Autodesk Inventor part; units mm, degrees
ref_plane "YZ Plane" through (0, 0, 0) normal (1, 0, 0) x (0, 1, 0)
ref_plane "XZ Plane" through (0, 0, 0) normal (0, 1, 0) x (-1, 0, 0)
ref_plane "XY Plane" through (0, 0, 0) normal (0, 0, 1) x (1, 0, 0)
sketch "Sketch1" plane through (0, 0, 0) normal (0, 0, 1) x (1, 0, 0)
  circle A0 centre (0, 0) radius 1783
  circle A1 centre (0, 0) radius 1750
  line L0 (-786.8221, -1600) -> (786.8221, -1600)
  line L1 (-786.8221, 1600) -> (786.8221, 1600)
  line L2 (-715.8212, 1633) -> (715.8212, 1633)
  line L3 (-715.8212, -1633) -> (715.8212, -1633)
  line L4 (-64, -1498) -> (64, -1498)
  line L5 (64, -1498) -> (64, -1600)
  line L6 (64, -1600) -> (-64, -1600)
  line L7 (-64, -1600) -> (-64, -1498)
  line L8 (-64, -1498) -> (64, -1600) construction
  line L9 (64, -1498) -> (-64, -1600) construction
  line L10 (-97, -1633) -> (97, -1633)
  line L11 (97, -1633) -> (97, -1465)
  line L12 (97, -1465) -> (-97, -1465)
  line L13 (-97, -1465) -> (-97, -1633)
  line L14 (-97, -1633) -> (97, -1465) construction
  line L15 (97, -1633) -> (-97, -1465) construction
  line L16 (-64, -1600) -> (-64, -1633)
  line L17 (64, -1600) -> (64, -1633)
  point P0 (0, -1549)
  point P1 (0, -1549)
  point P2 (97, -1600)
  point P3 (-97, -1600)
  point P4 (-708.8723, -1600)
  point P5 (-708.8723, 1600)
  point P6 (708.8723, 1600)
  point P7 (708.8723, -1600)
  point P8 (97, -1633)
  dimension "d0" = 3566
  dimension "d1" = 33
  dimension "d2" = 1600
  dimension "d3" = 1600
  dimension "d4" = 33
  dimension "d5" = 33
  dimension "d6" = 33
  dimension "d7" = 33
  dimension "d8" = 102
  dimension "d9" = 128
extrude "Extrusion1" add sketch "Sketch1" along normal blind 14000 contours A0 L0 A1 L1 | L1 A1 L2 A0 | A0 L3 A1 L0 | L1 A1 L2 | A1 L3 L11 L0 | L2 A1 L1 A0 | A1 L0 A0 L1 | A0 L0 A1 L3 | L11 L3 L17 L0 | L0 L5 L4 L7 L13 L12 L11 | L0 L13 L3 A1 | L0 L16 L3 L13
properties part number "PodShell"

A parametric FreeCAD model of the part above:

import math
import FreeCAD as App
import Part
import Sketcher

V = App.Vector

doc = App.newDocument("Part")
body = doc.addObject("PartDesign::Body", "Body")

# Sketch on XY plane
sketch1 = body.newObject("Sketcher::SketchObject", "Sketch")
sketch1.AttachmentSupport = (doc.getObject("XY_Plane"), [""])
sketch1.MapMode = "FlatFace"
sketch1.addGeometry(Part.LineSegment(V(716, 1633, 0), V(-716, 1633, 0)), False)
sketch1.addGeometry(Part.ArcOfCircle(Part.Circle(V(0, 0, 0), V(0, 0, 1), 1783), math.radians(114), math.radians(246)), False)
sketch1.addGeometry(Part.LineSegment(V(-716, -1633, 0), V(-64, -1633, 0)), False)
sketch1.addGeometry(Part.LineSegment(V(-64, -1633, 0), V(-64, -1498, 0)), False)
sketch1.addGeometry(Part.LineSegment(V(-64, -1498, 0), V(64, -1498, 0)), False)
sketch1.addGeometry(Part.LineSegment(V(64, -1498, 0), V(64, -1633, 0)), False)
sketch1.addGeometry(Part.LineSegment(V(64, -1633, 0), V(716, -1633, 0)), False)
sketch1.addGeometry(Part.ArcOfCircle(Part.Circle(V(0, 0, 0), V(0, 0, 1), 1783), math.radians(-66), math.radians(66)), False)
sketch1.addGeometry(Part.LineSegment(V(709, -1600, 0), V(97, -1600, 0)), False)
sketch1.addGeometry(Part.LineSegment(V(97, -1600, 0), V(97, -1465, 0)), False)
sketch1.addGeometry(Part.LineSegment(V(97, -1465, 0), V(-97, -1465, 0)), False)
sketch1.addGeometry(Part.LineSegment(V(-97, -1465, 0), V(-97, -1600, 0)), False)
sketch1.addGeometry(Part.LineSegment(V(-97, -1600, 0), V(-709, -1600, 0)), False)
sketch1.addGeometry(Part.ArcOfCircle(Part.Circle(V(0, 0, 0), V(0, 0, 1), 1750), math.radians(114), math.radians(246)), False)
sketch1.addGeometry(Part.LineSegment(V(-709, 1600, 0), V(709, 1600, 0)), False)
sketch1.addGeometry(Part.ArcOfCircle(Part.Circle(V(0, 0, 0), V(0, 0, 1), 1750), math.radians(-66), math.radians(66)), False)
sketch1.addConstraint(Sketcher.Constraint("Coincident", 0, 2, 1, 1))
sketch1.addConstraint(Sketcher.Constraint("Coincident", 1, 2, 2, 1))
sketch1.addConstraint(Sketcher.Constraint("Coincident", 2, 2, 3, 1))
sketch1.addConstraint(Sketcher.Constraint("Coincident", 3, 2, 4, 1))
sketch1.addConstraint(Sketcher.Constraint("Coincident", 4, 2, 5, 1))
sketch1.addConstraint(Sketcher.Constraint("Coincident", 5, 2, 6, 1))
sketch1.addConstraint(Sketcher.Constraint("Coincident", 6, 2, 7, 1))
sketch1.addConstraint(Sketcher.Constraint("Coincident", 7, 2, 0, 1))
sketch1.addConstraint(Sketcher.Constraint("Coincident", 8, 2, 9, 1))
sketch1.addConstraint(Sketcher.Constraint("Coincident", 9, 2, 10, 1))
sketch1.addConstraint(Sketcher.Constraint("Coincident", 10, 2, 11, 1))
sketch1.addConstraint(Sketcher.Constraint("Coincident", 11, 2, 12, 1))
sketch1.addConstraint(Sketcher.Constraint("Coincident", 12, 2, 13, 2))
sketch1.addConstraint(Sketcher.Constraint("Coincident", 13, 1, 14, 1))
sketch1.addConstraint(Sketcher.Constraint("Coincident", 14, 2, 15, 2))
sketch1.addConstraint(Sketcher.Constraint("Coincident", 15, 1, 8, 1))
sketch1.addConstraint(Sketcher.Constraint("Horizontal", 0))
sketch1.addConstraint(Sketcher.Constraint("Horizontal", 2))
sketch1.addConstraint(Sketcher.Constraint("Vertical", 3))
sketch1.addConstraint(Sketcher.Constraint("Horizontal", 4))
sketch1.addConstraint(Sketcher.Constraint("Vertical", 5))
sketch1.addConstraint(Sketcher.Constraint("Horizontal", 6))
sketch1.addConstraint(Sketcher.Constraint("Horizontal", 8))
sketch1.addConstraint(Sketcher.Constraint("Vertical", 9))
sketch1.addConstraint(Sketcher.Constraint("Horizontal", 10))
sketch1.addConstraint(Sketcher.Constraint("Vertical", 11))
sketch1.addConstraint(Sketcher.Constraint("Horizontal", 12))
sketch1.addConstraint(Sketcher.Constraint("Horizontal", 14))
sketch1.addConstraint(Sketcher.Constraint("Coincident", 1, 3, -1, 1))
sketch1.addConstraint(Sketcher.Constraint("Coincident", 7, 3, -1, 1))
sketch1.addConstraint(Sketcher.Constraint("Coincident", 13, 3, -1, 1))
sketch1.addConstraint(Sketcher.Constraint("Coincident", 15, 3, -1, 1))
sketch1.addConstraint(Sketcher.Constraint("Equal", 1, 7))
sketch1.addConstraint(Sketcher.Constraint("Equal", 13, 15))
sketch1.addConstraint(Sketcher.Constraint("Symmetric", 2, 2, 5, 2, -2))
sketch1.addConstraint(Sketcher.Constraint("Symmetric", 8, 2, 11, 2, -2))
sketch1.addConstraint(Sketcher.Constraint("Equal", 5, 9))
sketch1.addConstraint(Sketcher.Constraint("Radius", 1, 1783.0))
sketch1.addConstraint(Sketcher.Constraint("DistanceX", 4, 1, 4, 2, 128.0))
sketch1.addConstraint(Sketcher.Constraint("DistanceY", 8, 2, -1, 1, 1600.0))
sketch1.addConstraint(Sketcher.Constraint("DistanceY", -1, 1, 14, 2, 1600.0))
sketch1.addConstraint(Sketcher.Constraint("Radius", 13, 1750.0))
sketch1.addConstraint(Sketcher.Constraint("DistanceX", 5, 2, 8, 2, 33.0))
sketch1.addConstraint(Sketcher.Constraint("DistanceY", 5, 2, 8, 2, 33.0))
sketch1.addConstraint(Sketcher.Constraint("DistanceY", 8, 2, 4, 2, 102.0))
sketch1.addConstraint(Sketcher.Constraint("DistanceY", 14, 2, 0, 2, 33.0))
pad1 = body.newObject("PartDesign::Pad", "Pad")
pad1.Profile = sketch1
pad1.Length = 14000

doc.recompute()
